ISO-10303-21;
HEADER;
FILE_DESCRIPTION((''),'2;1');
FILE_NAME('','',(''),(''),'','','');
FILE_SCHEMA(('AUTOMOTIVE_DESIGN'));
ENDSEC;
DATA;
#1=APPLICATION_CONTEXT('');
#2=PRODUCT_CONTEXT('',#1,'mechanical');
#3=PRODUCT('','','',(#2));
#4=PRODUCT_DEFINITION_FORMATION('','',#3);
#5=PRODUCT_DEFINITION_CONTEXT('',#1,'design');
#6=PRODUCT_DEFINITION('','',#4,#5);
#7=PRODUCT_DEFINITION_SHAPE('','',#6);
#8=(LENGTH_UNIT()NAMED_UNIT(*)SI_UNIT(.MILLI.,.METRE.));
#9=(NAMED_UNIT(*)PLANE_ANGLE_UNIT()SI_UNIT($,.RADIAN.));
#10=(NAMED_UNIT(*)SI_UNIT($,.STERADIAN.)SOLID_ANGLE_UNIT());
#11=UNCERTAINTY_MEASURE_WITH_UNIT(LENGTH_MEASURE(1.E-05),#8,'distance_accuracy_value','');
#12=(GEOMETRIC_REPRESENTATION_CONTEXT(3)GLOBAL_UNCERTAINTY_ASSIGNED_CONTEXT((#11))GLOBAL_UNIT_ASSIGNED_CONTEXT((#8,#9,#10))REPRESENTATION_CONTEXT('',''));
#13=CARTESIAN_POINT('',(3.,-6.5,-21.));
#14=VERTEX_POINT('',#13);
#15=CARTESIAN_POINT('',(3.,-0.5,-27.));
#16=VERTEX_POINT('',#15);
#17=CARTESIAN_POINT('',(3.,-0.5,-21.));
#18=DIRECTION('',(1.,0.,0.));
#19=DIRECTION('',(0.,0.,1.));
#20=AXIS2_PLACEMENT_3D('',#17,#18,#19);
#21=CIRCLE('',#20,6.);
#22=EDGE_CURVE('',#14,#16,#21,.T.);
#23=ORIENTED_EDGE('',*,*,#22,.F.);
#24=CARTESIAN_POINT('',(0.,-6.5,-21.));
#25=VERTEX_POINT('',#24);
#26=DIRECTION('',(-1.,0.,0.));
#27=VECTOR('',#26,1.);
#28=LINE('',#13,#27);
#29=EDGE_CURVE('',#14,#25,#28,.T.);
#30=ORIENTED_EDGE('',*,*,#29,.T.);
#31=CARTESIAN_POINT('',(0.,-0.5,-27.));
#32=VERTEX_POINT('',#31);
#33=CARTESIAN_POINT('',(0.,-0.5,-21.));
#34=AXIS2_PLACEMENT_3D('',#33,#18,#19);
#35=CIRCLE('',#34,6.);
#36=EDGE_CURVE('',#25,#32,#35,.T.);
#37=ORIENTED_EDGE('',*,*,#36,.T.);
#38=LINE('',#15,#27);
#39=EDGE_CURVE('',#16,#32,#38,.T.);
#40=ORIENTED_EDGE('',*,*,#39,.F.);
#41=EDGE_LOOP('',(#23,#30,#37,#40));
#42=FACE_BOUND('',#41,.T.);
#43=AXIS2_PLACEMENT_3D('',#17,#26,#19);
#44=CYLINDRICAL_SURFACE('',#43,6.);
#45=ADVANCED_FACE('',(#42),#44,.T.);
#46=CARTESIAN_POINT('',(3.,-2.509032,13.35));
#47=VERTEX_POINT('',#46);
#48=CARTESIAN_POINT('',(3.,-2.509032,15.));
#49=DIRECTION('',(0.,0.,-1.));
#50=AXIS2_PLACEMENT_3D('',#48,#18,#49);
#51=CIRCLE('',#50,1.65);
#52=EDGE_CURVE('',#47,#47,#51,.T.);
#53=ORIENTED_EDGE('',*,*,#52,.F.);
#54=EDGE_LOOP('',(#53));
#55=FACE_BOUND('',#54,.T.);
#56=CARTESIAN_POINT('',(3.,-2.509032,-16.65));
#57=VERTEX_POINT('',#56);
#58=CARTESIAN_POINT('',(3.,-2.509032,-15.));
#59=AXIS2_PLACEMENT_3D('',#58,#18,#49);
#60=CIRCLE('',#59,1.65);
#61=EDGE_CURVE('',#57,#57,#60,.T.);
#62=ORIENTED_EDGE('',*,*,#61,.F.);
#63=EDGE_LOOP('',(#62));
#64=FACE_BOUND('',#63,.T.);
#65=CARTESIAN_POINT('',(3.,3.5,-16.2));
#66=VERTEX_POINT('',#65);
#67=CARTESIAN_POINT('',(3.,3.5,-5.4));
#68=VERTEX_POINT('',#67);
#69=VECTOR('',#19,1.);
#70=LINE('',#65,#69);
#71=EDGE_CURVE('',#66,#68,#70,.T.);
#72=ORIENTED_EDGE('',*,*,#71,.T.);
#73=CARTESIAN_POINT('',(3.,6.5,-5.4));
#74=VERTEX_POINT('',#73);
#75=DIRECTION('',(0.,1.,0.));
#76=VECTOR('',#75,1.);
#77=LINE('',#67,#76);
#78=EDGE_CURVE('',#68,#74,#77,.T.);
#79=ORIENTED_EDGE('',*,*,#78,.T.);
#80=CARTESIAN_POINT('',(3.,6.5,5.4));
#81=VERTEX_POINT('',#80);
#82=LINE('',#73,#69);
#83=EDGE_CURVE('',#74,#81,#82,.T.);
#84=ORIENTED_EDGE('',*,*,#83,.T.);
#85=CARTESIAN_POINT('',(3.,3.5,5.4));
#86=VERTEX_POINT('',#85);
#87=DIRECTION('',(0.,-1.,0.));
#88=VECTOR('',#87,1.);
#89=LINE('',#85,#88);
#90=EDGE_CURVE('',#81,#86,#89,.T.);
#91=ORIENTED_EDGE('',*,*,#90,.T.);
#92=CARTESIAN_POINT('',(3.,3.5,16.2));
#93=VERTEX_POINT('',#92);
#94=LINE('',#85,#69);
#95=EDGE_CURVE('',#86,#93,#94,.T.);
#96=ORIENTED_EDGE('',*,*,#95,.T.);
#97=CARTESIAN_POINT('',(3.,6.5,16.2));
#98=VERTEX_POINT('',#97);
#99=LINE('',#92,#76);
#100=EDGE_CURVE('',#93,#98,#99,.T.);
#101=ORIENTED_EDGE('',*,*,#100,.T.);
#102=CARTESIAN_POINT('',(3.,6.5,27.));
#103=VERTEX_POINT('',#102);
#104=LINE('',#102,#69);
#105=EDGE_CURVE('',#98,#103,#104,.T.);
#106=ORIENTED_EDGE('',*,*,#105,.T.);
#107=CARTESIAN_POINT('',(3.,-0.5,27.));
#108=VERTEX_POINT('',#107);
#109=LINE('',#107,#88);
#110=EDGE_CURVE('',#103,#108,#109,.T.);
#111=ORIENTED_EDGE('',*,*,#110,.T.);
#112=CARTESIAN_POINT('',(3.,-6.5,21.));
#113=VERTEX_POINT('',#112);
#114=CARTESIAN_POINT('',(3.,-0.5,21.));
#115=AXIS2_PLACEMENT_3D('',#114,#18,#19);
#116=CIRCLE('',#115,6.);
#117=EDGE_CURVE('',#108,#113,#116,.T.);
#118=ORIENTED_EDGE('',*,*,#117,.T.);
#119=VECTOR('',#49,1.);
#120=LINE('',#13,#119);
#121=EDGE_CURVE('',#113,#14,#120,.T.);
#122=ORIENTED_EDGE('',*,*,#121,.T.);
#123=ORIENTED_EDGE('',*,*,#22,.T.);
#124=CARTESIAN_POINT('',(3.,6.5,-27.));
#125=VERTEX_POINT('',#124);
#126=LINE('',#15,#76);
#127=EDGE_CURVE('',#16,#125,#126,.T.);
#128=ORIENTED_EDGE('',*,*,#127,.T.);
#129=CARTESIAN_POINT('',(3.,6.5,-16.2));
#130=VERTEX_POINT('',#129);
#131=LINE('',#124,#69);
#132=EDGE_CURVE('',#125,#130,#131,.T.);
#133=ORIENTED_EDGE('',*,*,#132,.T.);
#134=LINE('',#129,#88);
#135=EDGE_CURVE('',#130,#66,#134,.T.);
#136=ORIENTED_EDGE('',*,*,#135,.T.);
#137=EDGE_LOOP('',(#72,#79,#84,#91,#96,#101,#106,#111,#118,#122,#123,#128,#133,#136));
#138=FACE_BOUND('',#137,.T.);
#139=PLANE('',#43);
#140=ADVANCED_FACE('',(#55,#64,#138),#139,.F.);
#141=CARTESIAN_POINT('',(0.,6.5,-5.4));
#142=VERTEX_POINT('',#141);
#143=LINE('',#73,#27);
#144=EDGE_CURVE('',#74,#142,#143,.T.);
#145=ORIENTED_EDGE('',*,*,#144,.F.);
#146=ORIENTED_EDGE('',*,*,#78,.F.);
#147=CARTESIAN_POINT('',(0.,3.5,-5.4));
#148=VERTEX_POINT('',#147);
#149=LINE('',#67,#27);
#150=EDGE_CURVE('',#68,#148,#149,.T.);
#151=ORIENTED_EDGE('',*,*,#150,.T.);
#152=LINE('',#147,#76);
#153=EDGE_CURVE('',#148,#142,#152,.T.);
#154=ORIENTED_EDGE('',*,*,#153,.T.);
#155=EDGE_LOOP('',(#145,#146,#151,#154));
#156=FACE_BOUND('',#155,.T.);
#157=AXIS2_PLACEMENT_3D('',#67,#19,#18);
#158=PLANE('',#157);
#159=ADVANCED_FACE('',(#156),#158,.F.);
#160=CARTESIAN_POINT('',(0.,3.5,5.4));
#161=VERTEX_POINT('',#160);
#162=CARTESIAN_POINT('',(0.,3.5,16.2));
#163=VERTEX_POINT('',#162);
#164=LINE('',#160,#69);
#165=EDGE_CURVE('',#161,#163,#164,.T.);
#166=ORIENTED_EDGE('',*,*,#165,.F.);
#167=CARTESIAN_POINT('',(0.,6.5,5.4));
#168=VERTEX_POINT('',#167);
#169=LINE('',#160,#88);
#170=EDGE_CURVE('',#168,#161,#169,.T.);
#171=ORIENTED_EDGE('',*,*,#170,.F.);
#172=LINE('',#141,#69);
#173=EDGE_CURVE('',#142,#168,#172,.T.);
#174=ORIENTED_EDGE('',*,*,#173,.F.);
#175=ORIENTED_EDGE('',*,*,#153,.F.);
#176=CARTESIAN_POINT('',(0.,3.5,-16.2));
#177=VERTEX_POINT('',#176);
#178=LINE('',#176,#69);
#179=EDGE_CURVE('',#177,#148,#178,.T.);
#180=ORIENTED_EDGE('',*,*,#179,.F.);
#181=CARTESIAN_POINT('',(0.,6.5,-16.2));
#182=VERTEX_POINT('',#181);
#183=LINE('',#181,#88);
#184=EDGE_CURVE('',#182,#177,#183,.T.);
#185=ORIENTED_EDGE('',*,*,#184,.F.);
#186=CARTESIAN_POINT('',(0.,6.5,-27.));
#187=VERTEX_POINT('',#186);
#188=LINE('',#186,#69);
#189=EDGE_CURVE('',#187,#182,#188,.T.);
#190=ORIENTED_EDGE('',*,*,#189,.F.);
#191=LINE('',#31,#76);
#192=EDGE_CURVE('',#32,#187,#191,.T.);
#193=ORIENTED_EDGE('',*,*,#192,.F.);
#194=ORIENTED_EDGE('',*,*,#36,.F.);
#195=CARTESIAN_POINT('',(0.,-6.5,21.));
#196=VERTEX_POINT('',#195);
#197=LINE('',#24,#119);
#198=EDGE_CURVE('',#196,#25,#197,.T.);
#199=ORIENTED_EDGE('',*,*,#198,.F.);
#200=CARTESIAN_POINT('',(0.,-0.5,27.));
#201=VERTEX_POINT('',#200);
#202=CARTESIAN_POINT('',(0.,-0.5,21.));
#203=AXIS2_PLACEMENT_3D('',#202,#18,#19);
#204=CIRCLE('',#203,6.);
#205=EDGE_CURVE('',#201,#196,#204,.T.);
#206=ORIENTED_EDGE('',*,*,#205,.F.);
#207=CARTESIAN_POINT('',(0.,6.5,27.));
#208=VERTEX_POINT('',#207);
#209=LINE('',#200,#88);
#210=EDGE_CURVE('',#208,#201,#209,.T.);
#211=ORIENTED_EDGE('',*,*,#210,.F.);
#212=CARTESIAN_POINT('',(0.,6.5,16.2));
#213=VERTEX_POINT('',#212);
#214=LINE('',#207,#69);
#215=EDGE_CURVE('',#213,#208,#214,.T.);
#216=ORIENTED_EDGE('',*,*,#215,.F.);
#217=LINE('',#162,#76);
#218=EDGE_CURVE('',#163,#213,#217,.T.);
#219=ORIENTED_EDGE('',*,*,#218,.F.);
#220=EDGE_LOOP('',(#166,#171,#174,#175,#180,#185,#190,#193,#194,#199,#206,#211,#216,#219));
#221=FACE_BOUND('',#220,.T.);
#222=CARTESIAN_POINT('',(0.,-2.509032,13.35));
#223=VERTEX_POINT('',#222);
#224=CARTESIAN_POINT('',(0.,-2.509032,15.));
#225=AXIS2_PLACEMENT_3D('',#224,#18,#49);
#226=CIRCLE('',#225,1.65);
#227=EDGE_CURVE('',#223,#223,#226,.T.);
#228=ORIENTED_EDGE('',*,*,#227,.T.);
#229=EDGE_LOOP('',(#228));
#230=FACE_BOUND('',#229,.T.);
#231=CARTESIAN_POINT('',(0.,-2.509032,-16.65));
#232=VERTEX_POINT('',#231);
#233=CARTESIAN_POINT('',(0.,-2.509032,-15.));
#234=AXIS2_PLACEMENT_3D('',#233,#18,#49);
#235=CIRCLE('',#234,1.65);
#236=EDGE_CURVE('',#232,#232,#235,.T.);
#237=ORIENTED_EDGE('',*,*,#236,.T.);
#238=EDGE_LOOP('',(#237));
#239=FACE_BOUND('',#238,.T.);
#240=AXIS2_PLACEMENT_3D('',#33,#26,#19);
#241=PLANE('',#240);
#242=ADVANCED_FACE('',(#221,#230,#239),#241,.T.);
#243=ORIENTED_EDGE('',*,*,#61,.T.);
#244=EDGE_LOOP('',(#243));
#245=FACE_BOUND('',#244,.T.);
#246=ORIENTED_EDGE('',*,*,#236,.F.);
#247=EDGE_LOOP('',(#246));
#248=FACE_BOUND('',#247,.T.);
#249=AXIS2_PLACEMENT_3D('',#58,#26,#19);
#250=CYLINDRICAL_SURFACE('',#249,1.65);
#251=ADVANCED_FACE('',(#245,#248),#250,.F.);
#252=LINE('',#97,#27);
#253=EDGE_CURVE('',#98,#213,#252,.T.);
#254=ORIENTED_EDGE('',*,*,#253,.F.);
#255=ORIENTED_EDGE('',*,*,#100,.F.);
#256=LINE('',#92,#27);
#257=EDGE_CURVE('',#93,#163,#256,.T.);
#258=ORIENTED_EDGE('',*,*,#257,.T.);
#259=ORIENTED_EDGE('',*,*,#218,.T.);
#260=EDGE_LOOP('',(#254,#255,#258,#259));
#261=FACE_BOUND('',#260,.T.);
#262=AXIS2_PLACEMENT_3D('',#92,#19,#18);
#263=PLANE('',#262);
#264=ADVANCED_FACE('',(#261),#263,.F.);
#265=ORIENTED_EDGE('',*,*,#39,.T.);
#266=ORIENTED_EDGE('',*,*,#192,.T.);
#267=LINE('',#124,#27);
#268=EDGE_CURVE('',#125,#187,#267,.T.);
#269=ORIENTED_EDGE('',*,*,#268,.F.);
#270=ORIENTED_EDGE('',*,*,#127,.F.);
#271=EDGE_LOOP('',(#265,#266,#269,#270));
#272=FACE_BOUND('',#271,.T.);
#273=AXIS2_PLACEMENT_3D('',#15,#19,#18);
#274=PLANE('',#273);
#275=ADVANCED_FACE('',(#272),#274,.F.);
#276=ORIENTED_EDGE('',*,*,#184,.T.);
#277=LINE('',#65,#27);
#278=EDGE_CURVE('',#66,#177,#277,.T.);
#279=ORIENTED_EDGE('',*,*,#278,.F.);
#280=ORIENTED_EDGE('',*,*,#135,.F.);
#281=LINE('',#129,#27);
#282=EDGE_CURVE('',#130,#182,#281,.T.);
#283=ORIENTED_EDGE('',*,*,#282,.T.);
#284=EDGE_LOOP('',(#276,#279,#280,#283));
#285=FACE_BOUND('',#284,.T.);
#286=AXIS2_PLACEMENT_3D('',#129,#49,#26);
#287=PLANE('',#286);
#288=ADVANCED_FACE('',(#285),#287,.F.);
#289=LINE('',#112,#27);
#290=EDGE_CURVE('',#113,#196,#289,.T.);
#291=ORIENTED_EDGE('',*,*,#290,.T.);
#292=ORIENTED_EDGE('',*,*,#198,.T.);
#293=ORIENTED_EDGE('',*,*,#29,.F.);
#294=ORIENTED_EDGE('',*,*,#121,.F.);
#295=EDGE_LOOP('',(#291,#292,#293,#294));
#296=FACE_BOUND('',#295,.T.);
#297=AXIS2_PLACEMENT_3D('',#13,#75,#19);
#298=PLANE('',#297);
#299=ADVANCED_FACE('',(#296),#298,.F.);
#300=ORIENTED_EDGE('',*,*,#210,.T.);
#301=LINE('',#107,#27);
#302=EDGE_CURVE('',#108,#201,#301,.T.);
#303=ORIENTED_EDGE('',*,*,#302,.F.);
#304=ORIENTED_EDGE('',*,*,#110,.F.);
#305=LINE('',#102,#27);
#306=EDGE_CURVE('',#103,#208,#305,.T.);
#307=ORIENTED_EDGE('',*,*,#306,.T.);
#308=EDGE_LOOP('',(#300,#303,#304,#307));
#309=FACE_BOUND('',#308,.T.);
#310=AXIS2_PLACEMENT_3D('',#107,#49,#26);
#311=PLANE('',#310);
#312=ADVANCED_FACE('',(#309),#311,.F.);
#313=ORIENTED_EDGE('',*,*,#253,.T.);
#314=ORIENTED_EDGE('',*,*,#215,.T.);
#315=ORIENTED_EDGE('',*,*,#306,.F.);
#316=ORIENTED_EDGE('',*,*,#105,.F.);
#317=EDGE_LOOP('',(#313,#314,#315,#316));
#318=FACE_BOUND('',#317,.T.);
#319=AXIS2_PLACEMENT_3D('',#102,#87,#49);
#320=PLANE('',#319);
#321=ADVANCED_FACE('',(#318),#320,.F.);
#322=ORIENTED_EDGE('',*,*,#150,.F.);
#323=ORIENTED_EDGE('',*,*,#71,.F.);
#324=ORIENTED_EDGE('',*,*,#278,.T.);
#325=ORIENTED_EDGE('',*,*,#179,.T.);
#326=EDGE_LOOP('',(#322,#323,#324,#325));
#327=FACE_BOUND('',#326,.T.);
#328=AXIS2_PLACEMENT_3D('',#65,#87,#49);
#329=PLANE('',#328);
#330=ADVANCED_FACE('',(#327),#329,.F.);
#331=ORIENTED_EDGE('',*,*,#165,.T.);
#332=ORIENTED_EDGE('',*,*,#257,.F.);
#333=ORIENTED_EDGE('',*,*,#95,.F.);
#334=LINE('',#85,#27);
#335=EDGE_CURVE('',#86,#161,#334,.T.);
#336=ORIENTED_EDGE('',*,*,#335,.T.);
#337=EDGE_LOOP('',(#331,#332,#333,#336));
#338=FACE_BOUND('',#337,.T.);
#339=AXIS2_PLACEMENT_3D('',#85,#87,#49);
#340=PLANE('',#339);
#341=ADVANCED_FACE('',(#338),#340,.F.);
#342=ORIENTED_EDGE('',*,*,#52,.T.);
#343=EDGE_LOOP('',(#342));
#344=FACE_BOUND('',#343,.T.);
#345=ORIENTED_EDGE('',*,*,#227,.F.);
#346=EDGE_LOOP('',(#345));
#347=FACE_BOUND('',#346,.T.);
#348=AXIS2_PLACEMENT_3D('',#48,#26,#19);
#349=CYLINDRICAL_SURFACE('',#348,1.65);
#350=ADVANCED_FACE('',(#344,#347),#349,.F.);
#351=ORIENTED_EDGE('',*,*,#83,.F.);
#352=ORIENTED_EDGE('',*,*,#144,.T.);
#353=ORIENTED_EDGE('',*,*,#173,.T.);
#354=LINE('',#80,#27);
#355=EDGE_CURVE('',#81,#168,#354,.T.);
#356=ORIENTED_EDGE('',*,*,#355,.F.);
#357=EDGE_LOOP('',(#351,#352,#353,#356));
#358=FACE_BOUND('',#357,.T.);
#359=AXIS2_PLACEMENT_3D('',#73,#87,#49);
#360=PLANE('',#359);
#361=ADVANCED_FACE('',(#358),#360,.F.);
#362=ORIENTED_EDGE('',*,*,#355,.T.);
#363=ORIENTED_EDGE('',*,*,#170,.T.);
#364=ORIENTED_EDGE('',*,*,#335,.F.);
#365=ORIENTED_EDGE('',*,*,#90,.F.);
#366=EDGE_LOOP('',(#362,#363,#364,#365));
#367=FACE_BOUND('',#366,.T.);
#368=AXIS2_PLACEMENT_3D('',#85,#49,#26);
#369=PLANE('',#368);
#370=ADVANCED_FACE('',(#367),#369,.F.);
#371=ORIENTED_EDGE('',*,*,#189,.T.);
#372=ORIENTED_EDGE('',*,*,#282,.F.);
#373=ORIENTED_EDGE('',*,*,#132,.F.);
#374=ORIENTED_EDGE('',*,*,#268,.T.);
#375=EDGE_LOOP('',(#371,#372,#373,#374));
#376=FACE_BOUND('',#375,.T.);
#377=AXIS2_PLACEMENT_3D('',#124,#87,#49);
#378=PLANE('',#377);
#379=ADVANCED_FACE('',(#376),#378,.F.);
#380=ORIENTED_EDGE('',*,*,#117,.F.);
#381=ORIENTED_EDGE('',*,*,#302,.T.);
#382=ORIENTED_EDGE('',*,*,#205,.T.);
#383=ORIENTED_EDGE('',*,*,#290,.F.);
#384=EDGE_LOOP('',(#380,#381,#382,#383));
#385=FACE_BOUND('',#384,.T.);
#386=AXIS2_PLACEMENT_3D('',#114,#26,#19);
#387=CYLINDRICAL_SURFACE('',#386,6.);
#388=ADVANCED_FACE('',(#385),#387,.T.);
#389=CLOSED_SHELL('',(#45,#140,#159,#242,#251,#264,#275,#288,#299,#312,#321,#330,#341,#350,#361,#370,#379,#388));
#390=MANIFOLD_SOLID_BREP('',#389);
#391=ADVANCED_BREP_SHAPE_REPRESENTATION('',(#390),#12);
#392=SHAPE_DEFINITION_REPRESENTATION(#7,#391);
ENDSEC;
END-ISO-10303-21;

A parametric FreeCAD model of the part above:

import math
import FreeCAD as App
import Part
import Sketcher
from FreeCAD import Vector

doc = App.newDocument("Part")
body = doc.addObject("PartDesign::Body", "Body")

# Sketch on YZ plane
sketch1 = body.newObject("Sketcher::SketchObject", "Sketch")
sketch1.AttachmentSupport = (doc.getObject("YZ_Plane"), [""])
sketch1.MapMode = "FlatFace"
sketch1.addGeometry([
    Part.LineSegment(Vector(-6.5, 21, 0), Vector(-6.5, -21, 0)),  # 0
    Part.ArcOfCircle(Part.Circle(Vector(-0.5, -21, 0), Vector(0, 0, 1), 6), math.radians(180), math.radians(270)),  # 1
    Part.LineSegment(Vector(-0.5, -27, 0), Vector(6.5, -27, 0)),  # 2
    Part.LineSegment(Vector(6.5, -27, 0), Vector(6.5, -16.2, 0)),  # 3
    Part.LineSegment(Vector(6.5, -16.2, 0), Vector(3.5, -16.2, 0)),  # 4
    Part.LineSegment(Vector(3.5, -16.2, 0), Vector(3.5, -5.4, 0)),  # 5
    Part.LineSegment(Vector(3.5, -5.4, 0), Vector(6.5, -5.4, 0)),  # 6
    Part.LineSegment(Vector(6.5, -5.4, 0), Vector(6.5, 5.4, 0)),  # 7
    Part.LineSegment(Vector(6.5, 5.4, 0), Vector(3.5, 5.4, 0)),  # 8
    Part.LineSegment(Vector(3.5, 5.4, 0), Vector(3.5, 16.2, 0)),  # 9
    Part.LineSegment(Vector(3.5, 16.2, 0), Vector(6.5, 16.2, 0)),  # 10
    Part.LineSegment(Vector(6.5, 16.2, 0), Vector(6.5, 27, 0)),  # 11
    Part.LineSegment(Vector(6.5, 27, 0), Vector(-0.5, 27, 0)),  # 12
    Part.ArcOfCircle(Part.Circle(Vector(-0.5, 21, 0), Vector(0, 0, 1), 6), math.radians(90), math.radians(180)),  # 13
    Part.Circle(Vector(-2.5, -15, 0), Vector(0, 0, 1), 1.6),  # 14
    Part.Circle(Vector(-2.5, 15, 0), Vector(0, 0, 1), 1.6),  # 15
], False)
sketch1.addConstraint([
    Sketcher.Constraint("Tangent", 0, 2, 1, 1),
    Sketcher.Constraint("Tangent", 1, 2, 2, 1),
    Sketcher.Constraint("Coincident", 2, 2, 3, 1),
    Sketcher.Constraint("Coincident", 3, 2, 4, 1),
    Sketcher.Constraint("Coincident", 4, 2, 5, 1),
    Sketcher.Constraint("Coincident", 5, 2, 6, 1),
    Sketcher.Constraint("Coincident", 6, 2, 7, 1),
    Sketcher.Constraint("Coincident", 7, 2, 8, 1),
    Sketcher.Constraint("Coincident", 8, 2, 9, 1),
    Sketcher.Constraint("Coincident", 9, 2, 10, 1),
    Sketcher.Constraint("Coincident", 10, 2, 11, 1),
    Sketcher.Constraint("Coincident", 11, 2, 12, 1),
    Sketcher.Constraint("Tangent", 12, 2, 13, 1),
    Sketcher.Constraint("Tangent", 13, 2, 0, 1),
    Sketcher.Constraint("Vertical", 0),
    Sketcher.Constraint("Horizontal", 2),
    Sketcher.Constraint("Vertical", 3),
    Sketcher.Constraint("Horizontal", 4),
    Sketcher.Constraint("Vertical", 5),
    Sketcher.Constraint("Horizontal", 6),
    Sketcher.Constraint("Vertical", 7),
    Sketcher.Constraint("Horizontal", 8),
    Sketcher.Constraint("Vertical", 9),
    Sketcher.Constraint("Horizontal", 10),
    Sketcher.Constraint("Vertical", 11),
    Sketcher.Constraint("Horizontal", 12),
    Sketcher.Constraint("Equal", 1, 13),
    Sketcher.Constraint("Equal", 14, 15),
    Sketcher.Constraint("Symmetric", 14, 3, 15, 3, -1),
    Sketcher.Constraint("Symmetric", 5, 2, 8, 2, -1),
    Sketcher.Constraint("Symmetric", 3, 2, 10, 2, -1),
    Sketcher.Constraint("Vertical", 3, 2, 6, 2),
    Sketcher.Constraint("Equal", 3, 5),
    Sketcher.Constraint("Equal", 5, 7),
    Sketcher.Constraint("Equal", 9, 11),
    Sketcher.Constraint("Radius", 1, 6.0),
    Sketcher.Constraint("Diameter", 14, 3.3),
    Sketcher.Constraint("DistanceX", 2, 1, 2, 2, 7.0),
    Sketcher.Constraint("DistanceX", 4, 2, 4, 1, 3.0),
    Sketcher.Constraint("DistanceY", 0, 2, 0, 1, 42.0),
    Sketcher.Constraint("DistanceY", 14, 3, -1, 1, 15.0),
    Sketcher.Constraint("DistanceX", 1, 3, -1, 1, 0.5),
    Sketcher.Constraint("DistanceX", 14, 3, -1, 1, 2.509032),
])
pad1 = body.newObject("PartDesign::Pad", "Pad")
pad1.Profile = sketch1
pad1.Length = 3

doc.recompute()
